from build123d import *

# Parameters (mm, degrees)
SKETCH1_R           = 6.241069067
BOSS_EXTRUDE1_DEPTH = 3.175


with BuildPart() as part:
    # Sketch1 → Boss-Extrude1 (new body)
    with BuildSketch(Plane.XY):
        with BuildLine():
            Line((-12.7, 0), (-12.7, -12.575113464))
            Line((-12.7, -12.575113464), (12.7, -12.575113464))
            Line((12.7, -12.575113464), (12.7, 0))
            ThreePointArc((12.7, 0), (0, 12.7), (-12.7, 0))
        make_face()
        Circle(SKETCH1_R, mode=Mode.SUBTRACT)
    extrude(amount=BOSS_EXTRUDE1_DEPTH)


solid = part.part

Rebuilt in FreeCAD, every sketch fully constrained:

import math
import FreeCAD as App
import Part
import Sketcher

V = App.Vector
Q = App.Units.Quantity

doc = App.newDocument("Part")
body = doc.addObject("PartDesign::Body", "Body")

# Sketch on XY plane
sketch1 = body.newObject("Sketcher::SketchObject", "Sketch")
sketch1.AttachmentSupport = (doc.getObject("XY_Plane"), [""])
sketch1.MapMode = "FlatFace"
sketch1.addGeometry([
    Part.LineSegment(V(-13, 0, 0), V(-13, -13, 0)),  # 0
    Part.LineSegment(V(-13, -13, 0), V(13, -13, 0)),  # 1
    Part.LineSegment(V(13, -13, 0), V(13, 0, 0)),  # 2
    Part.ArcOfCircle(Part.Circle(V(0, 0, 0), V(0, 0, 1), 13), math.radians(0), math.radians(180)),  # 3
    Part.Circle(V(0, 0, 0), V(0, 0, 1), 6),  # 4
], False)
sketch1.addConstraint([
    Sketcher.Constraint("Coincident", 0, 2, 1, 1),
    Sketcher.Constraint("Coincident", 1, 2, 2, 1),
    Sketcher.Constraint("Tangent", 2, 2, 3, 1),
    Sketcher.Constraint("Tangent", 3, 2, 0, 1),
    Sketcher.Constraint("Vertical", 0),
    Sketcher.Constraint("Horizontal", 1),
    Sketcher.Constraint("Vertical", 2),
    Sketcher.Constraint("Coincident", 3, 3, -1, 1),
    Sketcher.Constraint("Coincident", 4, 3, -1, 1),
    Sketcher.Constraint("Radius", 3, Q("0.5 in")),
    Sketcher.Constraint("Diameter", 4, 12.482138),
    Sketcher.Constraint("DistanceY", 0, 2, 0, 1, 12.575113),
])
pad1 = body.newObject("PartDesign::Pad", "Pad")
pad1.Profile = sketch1
pad1.Length = Q("0.125 in")

doc.recompute()
